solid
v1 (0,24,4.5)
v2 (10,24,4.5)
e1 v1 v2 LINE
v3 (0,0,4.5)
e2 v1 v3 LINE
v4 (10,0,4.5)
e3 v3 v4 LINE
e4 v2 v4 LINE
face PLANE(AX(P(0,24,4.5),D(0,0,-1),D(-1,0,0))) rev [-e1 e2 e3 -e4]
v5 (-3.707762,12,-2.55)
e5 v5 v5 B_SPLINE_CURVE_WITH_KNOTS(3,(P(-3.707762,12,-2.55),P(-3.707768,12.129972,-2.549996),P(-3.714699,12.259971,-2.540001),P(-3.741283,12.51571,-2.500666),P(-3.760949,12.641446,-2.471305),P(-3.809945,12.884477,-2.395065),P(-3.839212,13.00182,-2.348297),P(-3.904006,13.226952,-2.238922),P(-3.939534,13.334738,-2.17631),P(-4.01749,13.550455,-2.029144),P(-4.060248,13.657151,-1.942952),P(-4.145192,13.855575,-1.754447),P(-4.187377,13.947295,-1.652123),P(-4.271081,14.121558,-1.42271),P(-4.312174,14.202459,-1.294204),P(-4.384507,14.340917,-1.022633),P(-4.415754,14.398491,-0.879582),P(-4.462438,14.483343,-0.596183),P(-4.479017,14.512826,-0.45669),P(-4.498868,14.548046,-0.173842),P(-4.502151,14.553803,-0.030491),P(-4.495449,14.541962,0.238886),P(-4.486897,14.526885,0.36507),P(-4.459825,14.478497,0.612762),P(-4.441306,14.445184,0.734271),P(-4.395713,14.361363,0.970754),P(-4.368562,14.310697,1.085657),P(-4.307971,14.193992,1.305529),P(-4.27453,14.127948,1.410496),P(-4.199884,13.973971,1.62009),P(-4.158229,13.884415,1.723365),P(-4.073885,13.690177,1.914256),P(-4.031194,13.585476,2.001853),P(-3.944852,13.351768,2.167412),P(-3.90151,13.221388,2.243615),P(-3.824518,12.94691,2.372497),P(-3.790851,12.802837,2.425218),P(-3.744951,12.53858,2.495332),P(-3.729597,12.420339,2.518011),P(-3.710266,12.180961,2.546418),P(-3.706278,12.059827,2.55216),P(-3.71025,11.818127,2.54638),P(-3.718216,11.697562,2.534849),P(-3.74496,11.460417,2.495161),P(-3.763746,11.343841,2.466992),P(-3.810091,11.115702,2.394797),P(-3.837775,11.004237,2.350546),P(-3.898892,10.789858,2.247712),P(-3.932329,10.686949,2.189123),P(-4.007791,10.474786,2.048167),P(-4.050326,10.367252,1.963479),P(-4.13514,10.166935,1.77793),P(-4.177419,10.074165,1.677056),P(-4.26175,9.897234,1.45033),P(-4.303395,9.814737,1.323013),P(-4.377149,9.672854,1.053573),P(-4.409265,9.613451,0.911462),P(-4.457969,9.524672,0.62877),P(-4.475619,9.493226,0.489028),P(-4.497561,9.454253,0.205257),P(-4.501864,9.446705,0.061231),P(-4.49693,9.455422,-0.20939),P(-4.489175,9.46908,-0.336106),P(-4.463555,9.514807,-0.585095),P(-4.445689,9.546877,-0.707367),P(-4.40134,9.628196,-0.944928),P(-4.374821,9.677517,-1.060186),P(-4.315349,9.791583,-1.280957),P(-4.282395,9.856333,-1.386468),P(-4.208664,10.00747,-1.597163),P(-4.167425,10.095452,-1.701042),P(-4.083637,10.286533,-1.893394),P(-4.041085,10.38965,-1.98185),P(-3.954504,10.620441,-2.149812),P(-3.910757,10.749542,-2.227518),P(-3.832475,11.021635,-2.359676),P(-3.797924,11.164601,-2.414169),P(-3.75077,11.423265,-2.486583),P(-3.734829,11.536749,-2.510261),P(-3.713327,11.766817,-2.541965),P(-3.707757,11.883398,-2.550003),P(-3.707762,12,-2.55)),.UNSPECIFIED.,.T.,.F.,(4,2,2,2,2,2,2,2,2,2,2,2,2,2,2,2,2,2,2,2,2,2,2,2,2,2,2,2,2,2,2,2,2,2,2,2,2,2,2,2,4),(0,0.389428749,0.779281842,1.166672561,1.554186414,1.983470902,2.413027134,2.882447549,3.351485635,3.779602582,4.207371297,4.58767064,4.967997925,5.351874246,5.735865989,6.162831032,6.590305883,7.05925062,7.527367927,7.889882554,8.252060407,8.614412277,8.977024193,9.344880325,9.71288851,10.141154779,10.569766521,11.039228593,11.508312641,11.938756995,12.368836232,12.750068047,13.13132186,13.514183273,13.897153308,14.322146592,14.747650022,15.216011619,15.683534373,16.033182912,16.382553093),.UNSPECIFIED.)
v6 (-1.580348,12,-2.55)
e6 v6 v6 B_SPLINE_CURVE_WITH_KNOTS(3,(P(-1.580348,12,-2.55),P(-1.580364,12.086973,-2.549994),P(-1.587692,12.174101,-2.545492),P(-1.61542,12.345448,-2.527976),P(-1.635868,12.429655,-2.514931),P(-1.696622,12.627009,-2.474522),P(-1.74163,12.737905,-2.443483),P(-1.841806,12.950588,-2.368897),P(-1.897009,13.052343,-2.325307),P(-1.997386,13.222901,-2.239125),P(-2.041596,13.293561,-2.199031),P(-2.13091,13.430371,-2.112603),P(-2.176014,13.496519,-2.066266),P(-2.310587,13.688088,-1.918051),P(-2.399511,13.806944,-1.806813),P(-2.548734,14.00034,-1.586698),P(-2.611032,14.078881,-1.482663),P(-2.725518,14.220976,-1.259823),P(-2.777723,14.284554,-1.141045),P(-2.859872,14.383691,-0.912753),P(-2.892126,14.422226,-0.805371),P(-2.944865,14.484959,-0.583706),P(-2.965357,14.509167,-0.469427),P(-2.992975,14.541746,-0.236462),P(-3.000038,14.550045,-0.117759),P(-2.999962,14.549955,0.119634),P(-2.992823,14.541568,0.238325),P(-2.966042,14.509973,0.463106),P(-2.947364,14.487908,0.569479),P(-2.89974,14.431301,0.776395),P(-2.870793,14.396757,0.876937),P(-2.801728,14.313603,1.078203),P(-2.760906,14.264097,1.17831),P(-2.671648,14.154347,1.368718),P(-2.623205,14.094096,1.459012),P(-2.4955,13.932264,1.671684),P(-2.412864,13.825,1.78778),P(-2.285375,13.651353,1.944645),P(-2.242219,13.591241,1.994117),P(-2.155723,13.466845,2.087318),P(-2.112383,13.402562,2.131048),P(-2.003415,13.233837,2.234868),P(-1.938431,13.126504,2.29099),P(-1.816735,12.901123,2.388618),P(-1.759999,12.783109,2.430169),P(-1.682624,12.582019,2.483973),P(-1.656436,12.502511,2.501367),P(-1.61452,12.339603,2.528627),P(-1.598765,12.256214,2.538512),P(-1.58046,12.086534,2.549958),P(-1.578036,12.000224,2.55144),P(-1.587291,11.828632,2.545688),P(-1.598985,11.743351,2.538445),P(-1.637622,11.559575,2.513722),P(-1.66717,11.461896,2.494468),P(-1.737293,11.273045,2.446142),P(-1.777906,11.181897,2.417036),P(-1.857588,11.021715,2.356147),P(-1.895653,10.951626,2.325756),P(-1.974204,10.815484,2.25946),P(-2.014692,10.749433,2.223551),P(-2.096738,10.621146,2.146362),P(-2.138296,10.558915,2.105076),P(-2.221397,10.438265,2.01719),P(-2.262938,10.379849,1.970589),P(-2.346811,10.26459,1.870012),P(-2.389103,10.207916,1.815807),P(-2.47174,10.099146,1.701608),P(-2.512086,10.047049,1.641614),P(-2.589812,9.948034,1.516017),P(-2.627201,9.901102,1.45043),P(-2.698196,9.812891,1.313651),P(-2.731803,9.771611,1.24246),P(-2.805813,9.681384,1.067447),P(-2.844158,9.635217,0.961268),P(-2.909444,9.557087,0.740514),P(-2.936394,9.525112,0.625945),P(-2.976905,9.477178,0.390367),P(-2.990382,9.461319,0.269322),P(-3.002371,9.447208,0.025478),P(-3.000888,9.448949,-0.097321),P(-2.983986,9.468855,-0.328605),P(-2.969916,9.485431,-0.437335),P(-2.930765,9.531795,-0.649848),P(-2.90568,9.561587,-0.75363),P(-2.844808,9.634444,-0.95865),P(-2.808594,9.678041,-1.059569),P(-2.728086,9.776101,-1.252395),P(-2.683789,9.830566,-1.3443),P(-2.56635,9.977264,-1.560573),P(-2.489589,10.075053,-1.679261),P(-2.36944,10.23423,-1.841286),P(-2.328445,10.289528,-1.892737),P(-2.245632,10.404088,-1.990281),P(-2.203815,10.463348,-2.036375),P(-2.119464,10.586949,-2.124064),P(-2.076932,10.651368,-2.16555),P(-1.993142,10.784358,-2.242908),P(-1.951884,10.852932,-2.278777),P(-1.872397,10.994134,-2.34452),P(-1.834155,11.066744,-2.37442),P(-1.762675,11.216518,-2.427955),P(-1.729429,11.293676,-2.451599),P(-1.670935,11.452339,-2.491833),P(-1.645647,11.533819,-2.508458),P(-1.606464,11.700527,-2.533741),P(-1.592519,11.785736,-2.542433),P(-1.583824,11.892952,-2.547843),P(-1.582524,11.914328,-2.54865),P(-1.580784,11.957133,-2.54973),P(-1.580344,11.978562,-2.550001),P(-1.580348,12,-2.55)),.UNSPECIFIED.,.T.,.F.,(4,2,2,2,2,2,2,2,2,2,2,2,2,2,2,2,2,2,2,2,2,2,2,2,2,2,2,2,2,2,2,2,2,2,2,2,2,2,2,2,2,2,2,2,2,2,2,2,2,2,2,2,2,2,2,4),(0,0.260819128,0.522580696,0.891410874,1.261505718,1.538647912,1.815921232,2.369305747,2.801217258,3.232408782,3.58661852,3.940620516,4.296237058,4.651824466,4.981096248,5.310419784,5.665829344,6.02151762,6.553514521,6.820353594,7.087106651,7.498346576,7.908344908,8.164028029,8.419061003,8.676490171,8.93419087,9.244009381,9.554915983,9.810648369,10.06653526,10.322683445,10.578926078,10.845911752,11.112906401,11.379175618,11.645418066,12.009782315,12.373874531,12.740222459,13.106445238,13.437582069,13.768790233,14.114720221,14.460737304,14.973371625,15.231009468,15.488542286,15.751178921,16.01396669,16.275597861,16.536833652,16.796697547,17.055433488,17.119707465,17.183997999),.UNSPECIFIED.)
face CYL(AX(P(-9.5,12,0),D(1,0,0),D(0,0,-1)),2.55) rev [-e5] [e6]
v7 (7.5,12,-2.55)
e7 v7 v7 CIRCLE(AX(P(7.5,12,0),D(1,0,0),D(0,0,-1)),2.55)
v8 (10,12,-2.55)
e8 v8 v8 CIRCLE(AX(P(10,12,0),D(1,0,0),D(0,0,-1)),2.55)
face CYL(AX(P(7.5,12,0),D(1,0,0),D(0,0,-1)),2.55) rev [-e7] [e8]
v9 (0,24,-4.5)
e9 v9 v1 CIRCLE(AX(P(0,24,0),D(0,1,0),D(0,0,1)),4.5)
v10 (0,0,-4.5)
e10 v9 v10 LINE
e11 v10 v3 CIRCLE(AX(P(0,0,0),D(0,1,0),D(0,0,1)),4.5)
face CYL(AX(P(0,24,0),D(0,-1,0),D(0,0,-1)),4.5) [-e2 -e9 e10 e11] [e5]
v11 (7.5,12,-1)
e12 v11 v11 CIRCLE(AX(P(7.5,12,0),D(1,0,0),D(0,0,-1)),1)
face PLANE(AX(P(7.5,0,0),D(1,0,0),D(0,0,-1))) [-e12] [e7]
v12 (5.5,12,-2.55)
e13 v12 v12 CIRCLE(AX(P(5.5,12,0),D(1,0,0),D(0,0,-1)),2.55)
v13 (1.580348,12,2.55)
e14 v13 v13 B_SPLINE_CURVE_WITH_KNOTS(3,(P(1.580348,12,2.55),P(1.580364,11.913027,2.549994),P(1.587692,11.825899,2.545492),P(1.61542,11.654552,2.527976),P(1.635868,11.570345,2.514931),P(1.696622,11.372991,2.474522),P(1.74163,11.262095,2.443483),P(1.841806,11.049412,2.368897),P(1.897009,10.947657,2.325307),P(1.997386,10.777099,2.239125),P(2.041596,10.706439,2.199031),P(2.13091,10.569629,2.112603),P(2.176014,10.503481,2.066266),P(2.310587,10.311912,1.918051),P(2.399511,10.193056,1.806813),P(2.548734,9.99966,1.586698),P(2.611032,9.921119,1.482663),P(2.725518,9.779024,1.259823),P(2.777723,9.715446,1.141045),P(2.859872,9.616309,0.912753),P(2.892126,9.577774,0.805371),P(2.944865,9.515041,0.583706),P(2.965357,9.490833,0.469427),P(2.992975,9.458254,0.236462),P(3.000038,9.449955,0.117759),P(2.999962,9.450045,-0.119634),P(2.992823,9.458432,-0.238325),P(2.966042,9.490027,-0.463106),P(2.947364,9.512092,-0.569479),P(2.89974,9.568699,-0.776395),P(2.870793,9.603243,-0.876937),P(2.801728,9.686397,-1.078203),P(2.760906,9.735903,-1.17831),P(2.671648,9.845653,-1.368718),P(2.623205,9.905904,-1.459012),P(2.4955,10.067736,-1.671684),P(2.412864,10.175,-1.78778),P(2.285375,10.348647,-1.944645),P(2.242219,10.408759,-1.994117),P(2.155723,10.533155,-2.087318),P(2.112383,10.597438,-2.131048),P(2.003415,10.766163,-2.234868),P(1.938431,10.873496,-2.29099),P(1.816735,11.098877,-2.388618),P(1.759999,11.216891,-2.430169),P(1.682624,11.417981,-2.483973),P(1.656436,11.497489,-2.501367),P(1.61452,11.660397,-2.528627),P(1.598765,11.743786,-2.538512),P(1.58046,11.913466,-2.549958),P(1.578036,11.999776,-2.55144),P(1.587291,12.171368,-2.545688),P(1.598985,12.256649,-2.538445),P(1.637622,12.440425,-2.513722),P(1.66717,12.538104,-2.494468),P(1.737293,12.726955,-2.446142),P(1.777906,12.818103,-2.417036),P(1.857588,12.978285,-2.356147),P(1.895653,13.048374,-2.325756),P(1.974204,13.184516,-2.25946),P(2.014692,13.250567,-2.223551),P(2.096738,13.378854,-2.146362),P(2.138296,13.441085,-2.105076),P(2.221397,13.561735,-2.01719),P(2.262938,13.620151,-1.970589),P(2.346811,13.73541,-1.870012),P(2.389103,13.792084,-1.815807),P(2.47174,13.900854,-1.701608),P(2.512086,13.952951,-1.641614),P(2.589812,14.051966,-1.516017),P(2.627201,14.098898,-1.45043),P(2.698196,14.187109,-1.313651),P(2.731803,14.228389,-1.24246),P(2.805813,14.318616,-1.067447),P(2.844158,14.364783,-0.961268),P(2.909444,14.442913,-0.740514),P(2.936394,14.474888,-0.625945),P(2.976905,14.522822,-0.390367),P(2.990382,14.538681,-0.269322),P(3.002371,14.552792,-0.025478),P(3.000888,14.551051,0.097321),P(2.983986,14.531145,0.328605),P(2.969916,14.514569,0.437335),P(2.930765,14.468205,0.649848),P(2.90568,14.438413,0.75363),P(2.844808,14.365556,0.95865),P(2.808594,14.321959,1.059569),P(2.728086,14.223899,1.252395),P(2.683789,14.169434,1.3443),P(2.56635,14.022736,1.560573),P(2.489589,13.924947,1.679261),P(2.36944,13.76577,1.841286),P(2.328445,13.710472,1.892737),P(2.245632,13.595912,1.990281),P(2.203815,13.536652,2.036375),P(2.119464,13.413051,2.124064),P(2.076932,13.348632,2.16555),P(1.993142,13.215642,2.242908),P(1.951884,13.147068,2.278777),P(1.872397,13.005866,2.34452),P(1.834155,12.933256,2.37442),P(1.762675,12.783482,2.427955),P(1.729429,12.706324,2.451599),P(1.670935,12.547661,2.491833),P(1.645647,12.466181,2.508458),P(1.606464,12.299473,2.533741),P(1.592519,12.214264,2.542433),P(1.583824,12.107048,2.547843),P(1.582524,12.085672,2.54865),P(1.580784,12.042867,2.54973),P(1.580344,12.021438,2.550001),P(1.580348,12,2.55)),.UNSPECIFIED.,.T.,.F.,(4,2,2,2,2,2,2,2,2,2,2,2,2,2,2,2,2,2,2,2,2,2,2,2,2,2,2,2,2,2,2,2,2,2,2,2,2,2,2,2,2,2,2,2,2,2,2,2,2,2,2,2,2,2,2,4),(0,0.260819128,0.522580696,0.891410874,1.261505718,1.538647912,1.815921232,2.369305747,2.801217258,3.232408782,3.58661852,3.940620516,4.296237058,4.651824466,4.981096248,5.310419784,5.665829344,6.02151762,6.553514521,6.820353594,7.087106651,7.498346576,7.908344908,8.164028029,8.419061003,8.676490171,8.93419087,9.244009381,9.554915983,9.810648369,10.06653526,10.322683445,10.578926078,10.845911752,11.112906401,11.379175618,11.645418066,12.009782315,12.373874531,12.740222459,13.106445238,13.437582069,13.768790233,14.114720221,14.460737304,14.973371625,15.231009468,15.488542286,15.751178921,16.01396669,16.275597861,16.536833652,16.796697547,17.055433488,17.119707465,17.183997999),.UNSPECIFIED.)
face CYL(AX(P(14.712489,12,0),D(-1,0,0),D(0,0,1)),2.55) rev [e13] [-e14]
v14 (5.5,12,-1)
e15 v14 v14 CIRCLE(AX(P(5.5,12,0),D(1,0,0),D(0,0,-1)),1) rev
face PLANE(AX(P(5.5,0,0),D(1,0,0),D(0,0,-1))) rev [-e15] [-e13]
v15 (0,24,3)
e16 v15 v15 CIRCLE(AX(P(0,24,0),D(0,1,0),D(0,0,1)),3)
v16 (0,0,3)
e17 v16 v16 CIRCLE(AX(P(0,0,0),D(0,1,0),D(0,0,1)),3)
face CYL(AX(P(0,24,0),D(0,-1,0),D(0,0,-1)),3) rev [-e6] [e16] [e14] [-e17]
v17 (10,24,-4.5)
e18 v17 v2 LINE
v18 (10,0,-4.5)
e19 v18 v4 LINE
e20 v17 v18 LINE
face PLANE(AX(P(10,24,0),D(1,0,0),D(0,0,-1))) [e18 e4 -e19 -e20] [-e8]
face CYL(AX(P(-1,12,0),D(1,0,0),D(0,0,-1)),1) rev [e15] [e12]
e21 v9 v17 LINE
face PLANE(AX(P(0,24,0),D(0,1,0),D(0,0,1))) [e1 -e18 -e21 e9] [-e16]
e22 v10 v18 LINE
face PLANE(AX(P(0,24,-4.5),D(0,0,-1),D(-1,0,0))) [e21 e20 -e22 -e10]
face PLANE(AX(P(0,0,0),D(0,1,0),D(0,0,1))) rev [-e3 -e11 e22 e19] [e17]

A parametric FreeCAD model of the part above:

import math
import FreeCAD as App
import Part
import Sketcher

V = App.Vector

doc = App.newDocument("Part")
body = doc.addObject("PartDesign::Body", "Body")

sketch1 = body.newObject("Sketcher::SketchObject", "Sketch")
sketch1.AttachmentSupport = (doc.getObject("XZ_Plane"), [""])
sketch1.MapMode = "FlatFace"
sketch1.addGeometry([
    Part.ArcOfCircle(Part.Circle(V(0, 0, 0), V(0, 0, 1), 4.5), math.radians(90), math.radians(270)),
    Part.LineSegment(V(0, 4.5, 0), V(10, 4.5, 0)),
    Part.LineSegment(V(10, 4.5, 0), V(10, -4.5, 0)),
    Part.LineSegment(V(10, -4.5, 0), V(0, -4.5, 0)),
    Part.ArcOfCircle(Part.Circle(V(0, 0, 0), V(0, 0, 1), 3), math.radians(90), math.radians(270)),
    Part.ArcOfCircle(Part.Circle(V(0, 0, 0), V(0, 0, 1), 3), math.radians(-90), math.radians(0)),
    Part.ArcOfCircle(Part.Circle(V(0, 0, 0), V(0, 0, 1), 3), math.radians(0), math.radians(90)),
], False)
sketch1.addConstraint([
    Sketcher.Constraint("Tangent", 0, 1, 1, 1),
    Sketcher.Constraint("Coincident", 1, 2, 2, 1),
    Sketcher.Constraint("Coincident", 2, 2, 3, 1),
    Sketcher.Constraint("Tangent", 3, 2, 0, 2),
    Sketcher.Constraint("Tangent", 4, 2, 5, 1),
    Sketcher.Constraint("Tangent", 5, 2, 6, 1),
    Sketcher.Constraint("Tangent", 6, 2, 4, 1),
    Sketcher.Constraint("Horizontal", 1),
    Sketcher.Constraint("Vertical", 2),
    Sketcher.Constraint("Horizontal", 3),
    Sketcher.Constraint("Coincident", 0, 3, -1, 1),
    Sketcher.Constraint("Coincident", 4, 3, -1, 1),
    Sketcher.Constraint("PointOnObject", 4, 2, -2),
    Sketcher.Constraint("PointOnObject", 5, 2, -1),
    Sketcher.Constraint("PointOnObject", 6, 2, -2),
    Sketcher.Constraint("Radius", 4, 3.0),
    Sketcher.Constraint("Radius", 0, 4.5),
    Sketcher.Constraint("DistanceX", 1, 1, 1, 2, 10.0),
])
pad1 = body.newObject("PartDesign::Pad", "Pad")
pad1.Profile = sketch1
pad1.Length = 24
pad1.Reversed = True

sketch2 = body.newObject("Sketcher::SketchObject", "Sketch001")
sketch2.AttachmentSupport = (doc.getObject("YZ_Plane"), [""])
sketch2.MapMode = "FlatFace"
sketch2.AttachmentOffset = App.Placement(V(0, 0, 10), App.Rotation())
sketch2.addGeometry([
    Part.ArcOfCircle(Part.Circle(V(12, 0, 0), V(0, 0, 1), 2.5), math.radians(-90), math.radians(0)),
    Part.ArcOfCircle(Part.Circle(V(12, 0, 0), V(0, 0, 1), 2.5), math.radians(0), math.radians(180)),
    Part.ArcOfCircle(Part.Circle(V(12, 0, 0), V(0, 0, 1), 2.5), math.radians(180), math.radians(270)),
], False)
sketch2.addConstraint([
    Sketcher.Constraint("Tangent", 0, 2, 1, 1),
    Sketcher.Constraint("Tangent", 1, 2, 2, 1),
    Sketcher.Constraint("Tangent", 2, 2, 0, 1),
    Sketcher.Constraint("PointOnObject", 0, 3, -1),
    Sketcher.Constraint("PointOnObject", 0, 2, -1),
    Sketcher.Constraint("PointOnObject", 1, 2, -1),
    Sketcher.Constraint("Vertical", 1, 3, 2, 2),
    Sketcher.Constraint("Radius", 0, 2.55),
    Sketcher.Constraint("DistanceX", -1, 1, 0, 3, 12.0),
])
pocket1 = body.newObject("PartDesign::Pocket", "Pocket")
pocket1.Profile = sketch2
pocket1.Length = 2.5

sketch3 = body.newObject("Sketcher::SketchObject", "Sketch002")
sketch3.AttachmentSupport = (doc.getObject("YZ_Plane"), [""])
sketch3.MapMode = "FlatFace"
sketch3.AttachmentOffset = App.Placement(V(0, 0, 7.5), App.Rotation())
sketch3.addGeometry(Part.Circle(V(12, 0, 0), V(0, 0, 1), 1), False)
sketch3.addConstraint([
    Sketcher.Constraint("PointOnObject", 0, 3, -1),
    Sketcher.Constraint("Diameter", 0, 2.0),
    Sketcher.Constraint("DistanceX", -1, 1, 0, 3, 12.0),
])
pocket2 = body.newObject("PartDesign::Pocket", "Pocket001")
pocket2.Profile = sketch3
pocket2.Length = 8.5

sketch4 = body.newObject("Sketcher::SketchObject", "Sketch003")
sketch4.AttachmentSupport = (doc.getObject("YZ_Plane"), [""])
sketch4.MapMode = "FlatFace"
sketch4.AttachmentOffset = App.Placement(V(0, 0, 5.5), App.Rotation())
sketch4.addGeometry(Part.Circle(V(12, 0, 0), V(0, 0, 1), 2.5), False)
sketch4.addConstraint([
    Sketcher.Constraint("PointOnObject", 0, 3, -1),
    Sketcher.Constraint("Diameter", 0, 5.1),
    Sketcher.Constraint("DistanceX", -1, 1, 0, 3, 12.0),
])
pocket3 = body.newObject("PartDesign::Pocket", "Pocket002")
pocket3.Profile = sketch4
pocket3.Length = 5

sketch5 = body.newObject("Sketcher::SketchObject", "Sketch004")
sketch5.AttachmentSupport = (doc.getObject("YZ_Plane"), [""])
sketch5.MapMode = "FlatFace"
sketch5.AttachmentOffset = App.Placement(V(0, 0, 0.5), App.Rotation())
sketch5.addGeometry(Part.Circle(V(12, 0, 0), V(0, 0, 1), 2.5), False)
sketch5.addConstraint([
    Sketcher.Constraint("PointOnObject", 0, 3, -1),
    Sketcher.Constraint("Diameter", 0, 5.1),
    Sketcher.Constraint("DistanceX", -1, 1, 0, 3, 12.0),
])
pocket4 = body.newObject("PartDesign::Pocket", "Pocket003")
pocket4.Profile = sketch5
pocket4.Length = 10

doc.recompute()
